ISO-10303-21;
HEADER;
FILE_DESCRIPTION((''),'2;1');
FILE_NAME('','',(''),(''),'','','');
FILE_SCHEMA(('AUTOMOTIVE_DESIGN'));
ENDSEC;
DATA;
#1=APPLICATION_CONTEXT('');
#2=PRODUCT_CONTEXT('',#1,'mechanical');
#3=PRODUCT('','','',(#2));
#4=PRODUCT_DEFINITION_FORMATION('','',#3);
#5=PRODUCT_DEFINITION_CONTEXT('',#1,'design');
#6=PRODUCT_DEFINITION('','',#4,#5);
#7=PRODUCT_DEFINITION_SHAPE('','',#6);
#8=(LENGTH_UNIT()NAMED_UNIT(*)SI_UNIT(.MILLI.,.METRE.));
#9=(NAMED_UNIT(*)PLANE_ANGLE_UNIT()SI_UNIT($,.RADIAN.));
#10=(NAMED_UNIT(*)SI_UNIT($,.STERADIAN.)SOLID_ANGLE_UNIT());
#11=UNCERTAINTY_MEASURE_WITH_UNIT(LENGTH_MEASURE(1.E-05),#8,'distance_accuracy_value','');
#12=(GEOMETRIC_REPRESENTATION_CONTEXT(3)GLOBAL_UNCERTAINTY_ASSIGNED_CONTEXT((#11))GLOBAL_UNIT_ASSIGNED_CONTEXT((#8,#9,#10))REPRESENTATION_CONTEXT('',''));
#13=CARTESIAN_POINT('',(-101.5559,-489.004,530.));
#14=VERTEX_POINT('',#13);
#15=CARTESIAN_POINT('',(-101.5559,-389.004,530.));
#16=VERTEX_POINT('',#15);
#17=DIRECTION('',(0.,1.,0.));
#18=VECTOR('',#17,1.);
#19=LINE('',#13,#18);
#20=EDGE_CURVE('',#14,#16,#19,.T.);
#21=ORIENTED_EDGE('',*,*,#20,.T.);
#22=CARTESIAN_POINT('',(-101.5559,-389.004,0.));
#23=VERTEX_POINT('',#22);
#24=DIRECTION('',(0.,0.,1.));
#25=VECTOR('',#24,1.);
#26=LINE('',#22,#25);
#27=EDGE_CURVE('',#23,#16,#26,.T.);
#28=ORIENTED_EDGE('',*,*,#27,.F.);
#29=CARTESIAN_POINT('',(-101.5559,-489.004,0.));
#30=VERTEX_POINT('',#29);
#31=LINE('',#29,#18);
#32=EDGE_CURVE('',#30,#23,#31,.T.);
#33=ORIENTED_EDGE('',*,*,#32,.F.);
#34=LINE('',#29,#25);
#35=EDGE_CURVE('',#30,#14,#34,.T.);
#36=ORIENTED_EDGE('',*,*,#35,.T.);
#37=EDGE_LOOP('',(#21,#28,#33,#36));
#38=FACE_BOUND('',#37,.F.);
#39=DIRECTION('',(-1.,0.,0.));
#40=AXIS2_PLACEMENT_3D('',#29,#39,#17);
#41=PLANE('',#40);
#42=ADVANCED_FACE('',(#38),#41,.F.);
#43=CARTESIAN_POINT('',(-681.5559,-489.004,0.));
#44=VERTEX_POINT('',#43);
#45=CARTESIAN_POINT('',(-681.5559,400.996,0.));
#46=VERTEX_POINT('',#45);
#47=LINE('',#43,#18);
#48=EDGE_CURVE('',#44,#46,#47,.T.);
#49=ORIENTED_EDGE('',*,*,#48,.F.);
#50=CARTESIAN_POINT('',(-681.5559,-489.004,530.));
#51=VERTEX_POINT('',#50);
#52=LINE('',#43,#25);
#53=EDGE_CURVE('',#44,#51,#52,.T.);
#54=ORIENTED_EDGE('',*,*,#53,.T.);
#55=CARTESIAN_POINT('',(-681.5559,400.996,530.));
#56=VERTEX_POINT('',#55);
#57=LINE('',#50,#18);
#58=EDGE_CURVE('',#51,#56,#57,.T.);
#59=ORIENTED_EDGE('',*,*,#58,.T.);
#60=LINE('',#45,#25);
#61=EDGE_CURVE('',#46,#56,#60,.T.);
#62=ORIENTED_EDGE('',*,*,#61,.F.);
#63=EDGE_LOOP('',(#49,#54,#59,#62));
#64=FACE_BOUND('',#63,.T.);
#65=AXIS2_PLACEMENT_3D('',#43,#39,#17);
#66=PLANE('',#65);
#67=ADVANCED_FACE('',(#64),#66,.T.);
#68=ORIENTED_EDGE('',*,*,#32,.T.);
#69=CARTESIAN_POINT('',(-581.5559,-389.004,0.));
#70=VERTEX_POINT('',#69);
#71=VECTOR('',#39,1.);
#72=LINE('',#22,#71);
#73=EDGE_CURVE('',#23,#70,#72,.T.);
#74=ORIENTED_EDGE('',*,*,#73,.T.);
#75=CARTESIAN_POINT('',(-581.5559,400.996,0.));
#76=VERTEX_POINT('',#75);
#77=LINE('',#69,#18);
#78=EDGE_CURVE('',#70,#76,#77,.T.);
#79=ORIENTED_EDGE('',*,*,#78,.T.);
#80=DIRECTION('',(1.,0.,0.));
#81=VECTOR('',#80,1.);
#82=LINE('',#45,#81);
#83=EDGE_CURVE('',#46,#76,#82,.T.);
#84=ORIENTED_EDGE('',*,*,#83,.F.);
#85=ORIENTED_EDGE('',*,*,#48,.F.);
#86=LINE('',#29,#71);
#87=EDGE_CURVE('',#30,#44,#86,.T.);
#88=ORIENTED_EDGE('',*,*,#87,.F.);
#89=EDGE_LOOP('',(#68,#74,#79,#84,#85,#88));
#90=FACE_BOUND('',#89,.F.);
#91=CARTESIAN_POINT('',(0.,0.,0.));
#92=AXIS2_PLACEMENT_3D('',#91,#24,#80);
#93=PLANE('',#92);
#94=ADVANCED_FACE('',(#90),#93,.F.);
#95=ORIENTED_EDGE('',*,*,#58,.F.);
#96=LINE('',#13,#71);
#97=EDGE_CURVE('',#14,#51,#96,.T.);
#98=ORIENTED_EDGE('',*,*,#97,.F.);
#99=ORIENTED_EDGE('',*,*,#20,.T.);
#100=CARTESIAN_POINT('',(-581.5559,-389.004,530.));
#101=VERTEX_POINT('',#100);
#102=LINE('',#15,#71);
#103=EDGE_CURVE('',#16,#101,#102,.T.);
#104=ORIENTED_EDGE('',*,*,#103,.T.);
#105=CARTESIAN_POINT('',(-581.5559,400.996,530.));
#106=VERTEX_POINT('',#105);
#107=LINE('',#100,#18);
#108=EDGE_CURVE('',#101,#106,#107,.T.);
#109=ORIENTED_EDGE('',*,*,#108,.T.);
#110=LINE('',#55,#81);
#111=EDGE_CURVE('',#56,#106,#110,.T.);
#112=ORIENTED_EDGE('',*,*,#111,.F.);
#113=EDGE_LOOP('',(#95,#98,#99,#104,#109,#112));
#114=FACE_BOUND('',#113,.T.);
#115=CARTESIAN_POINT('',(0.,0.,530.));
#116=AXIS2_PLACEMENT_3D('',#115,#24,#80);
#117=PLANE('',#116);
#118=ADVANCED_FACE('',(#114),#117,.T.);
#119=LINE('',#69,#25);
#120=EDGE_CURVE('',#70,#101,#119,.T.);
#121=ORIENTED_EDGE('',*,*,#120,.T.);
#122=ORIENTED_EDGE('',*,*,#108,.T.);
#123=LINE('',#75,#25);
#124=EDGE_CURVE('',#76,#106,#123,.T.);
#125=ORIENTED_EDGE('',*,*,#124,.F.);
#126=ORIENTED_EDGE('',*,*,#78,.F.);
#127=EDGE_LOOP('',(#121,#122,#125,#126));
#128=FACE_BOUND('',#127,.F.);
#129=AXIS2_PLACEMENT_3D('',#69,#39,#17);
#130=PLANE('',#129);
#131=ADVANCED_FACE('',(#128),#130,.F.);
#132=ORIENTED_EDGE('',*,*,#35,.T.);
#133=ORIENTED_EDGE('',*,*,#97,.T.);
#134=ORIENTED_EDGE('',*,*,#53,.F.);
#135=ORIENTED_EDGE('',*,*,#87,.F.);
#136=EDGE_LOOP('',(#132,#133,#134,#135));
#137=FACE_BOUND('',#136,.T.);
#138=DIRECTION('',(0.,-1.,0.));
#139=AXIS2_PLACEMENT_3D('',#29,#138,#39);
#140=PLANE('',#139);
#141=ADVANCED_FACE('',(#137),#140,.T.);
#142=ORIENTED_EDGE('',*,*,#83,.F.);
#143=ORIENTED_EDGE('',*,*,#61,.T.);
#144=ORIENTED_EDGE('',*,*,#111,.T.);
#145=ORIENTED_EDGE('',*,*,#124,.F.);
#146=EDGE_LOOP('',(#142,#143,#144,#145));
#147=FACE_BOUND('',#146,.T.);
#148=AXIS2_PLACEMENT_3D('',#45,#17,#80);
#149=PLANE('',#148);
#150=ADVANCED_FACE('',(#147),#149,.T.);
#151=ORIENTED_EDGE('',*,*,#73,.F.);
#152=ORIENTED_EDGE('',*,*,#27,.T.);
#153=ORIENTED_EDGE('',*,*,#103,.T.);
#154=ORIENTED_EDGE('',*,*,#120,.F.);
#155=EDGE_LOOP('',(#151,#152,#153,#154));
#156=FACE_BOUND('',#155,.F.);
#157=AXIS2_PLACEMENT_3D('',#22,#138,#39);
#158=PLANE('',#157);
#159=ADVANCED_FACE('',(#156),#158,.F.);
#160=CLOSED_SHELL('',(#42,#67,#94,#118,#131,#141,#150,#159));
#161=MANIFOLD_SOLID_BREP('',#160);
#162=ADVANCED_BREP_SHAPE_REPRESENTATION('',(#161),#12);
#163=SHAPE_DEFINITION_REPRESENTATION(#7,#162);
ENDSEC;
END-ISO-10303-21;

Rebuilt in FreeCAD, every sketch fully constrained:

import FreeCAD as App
import Part
import Sketcher
from FreeCAD import Vector
Q = App.Units.Quantity


def add_polygon(sketch, points):
    """Adds a closed chain of lines whose ends are joined by coincident constraints."""
    first, n = sketch.GeometryCount, len(points)
    for a, b in zip(points, points[1:] + points[:1]):
        sketch.addGeometry(Part.LineSegment(App.Vector(*a, 0), App.Vector(*b, 0)), False)
    for i in range(n):
        sketch.addConstraint(Sketcher.Constraint("Coincident", first + i, 2, first + (i + 1) % n, 1))

doc = App.newDocument("Part")
body = doc.addObject("PartDesign::Body", "Body")

# Sketch on XY plane
sketch1 = body.newObject("Sketcher::SketchObject", "Sketch")
sketch1.AttachmentSupport = (doc.getObject("XY_Plane"), [""])
sketch1.MapMode = "FlatFace"
add_polygon(sketch1, [(-582, 401), (-682, 401), (-682, -489), (-102, -489), (-102, -389), (-582, -389)])  # lines 0-5
sketch1.addConstraint([
    Sketcher.Constraint("Horizontal", 0),
    Sketcher.Constraint("Vertical", 1),
    Sketcher.Constraint("Horizontal", 2),
    Sketcher.Constraint("Vertical", 3),
    Sketcher.Constraint("Horizontal", 4),
    Sketcher.Constraint("Vertical", 5),
    Sketcher.Constraint("Equal", 0, 3),
    Sketcher.Constraint("DistanceX", 0, 2, 0, 1, Q("100 mm")),
    Sketcher.Constraint("DistanceX", 2, 1, 2, 2, Q("580 mm")),
    Sketcher.Constraint("DistanceY", 1, 2, 1, 1, Q("890 mm")),
    Sketcher.Constraint("DistanceX", 0, 2, -1, 1, Q("681.556 mm")),
    Sketcher.Constraint("DistanceY", -1, 1, 0, 2, Q("400.996 mm")),
])
pad1 = body.newObject("PartDesign::Pad", "Pad")
pad1.Profile = sketch1
pad1.Length = 530

doc.recompute()
